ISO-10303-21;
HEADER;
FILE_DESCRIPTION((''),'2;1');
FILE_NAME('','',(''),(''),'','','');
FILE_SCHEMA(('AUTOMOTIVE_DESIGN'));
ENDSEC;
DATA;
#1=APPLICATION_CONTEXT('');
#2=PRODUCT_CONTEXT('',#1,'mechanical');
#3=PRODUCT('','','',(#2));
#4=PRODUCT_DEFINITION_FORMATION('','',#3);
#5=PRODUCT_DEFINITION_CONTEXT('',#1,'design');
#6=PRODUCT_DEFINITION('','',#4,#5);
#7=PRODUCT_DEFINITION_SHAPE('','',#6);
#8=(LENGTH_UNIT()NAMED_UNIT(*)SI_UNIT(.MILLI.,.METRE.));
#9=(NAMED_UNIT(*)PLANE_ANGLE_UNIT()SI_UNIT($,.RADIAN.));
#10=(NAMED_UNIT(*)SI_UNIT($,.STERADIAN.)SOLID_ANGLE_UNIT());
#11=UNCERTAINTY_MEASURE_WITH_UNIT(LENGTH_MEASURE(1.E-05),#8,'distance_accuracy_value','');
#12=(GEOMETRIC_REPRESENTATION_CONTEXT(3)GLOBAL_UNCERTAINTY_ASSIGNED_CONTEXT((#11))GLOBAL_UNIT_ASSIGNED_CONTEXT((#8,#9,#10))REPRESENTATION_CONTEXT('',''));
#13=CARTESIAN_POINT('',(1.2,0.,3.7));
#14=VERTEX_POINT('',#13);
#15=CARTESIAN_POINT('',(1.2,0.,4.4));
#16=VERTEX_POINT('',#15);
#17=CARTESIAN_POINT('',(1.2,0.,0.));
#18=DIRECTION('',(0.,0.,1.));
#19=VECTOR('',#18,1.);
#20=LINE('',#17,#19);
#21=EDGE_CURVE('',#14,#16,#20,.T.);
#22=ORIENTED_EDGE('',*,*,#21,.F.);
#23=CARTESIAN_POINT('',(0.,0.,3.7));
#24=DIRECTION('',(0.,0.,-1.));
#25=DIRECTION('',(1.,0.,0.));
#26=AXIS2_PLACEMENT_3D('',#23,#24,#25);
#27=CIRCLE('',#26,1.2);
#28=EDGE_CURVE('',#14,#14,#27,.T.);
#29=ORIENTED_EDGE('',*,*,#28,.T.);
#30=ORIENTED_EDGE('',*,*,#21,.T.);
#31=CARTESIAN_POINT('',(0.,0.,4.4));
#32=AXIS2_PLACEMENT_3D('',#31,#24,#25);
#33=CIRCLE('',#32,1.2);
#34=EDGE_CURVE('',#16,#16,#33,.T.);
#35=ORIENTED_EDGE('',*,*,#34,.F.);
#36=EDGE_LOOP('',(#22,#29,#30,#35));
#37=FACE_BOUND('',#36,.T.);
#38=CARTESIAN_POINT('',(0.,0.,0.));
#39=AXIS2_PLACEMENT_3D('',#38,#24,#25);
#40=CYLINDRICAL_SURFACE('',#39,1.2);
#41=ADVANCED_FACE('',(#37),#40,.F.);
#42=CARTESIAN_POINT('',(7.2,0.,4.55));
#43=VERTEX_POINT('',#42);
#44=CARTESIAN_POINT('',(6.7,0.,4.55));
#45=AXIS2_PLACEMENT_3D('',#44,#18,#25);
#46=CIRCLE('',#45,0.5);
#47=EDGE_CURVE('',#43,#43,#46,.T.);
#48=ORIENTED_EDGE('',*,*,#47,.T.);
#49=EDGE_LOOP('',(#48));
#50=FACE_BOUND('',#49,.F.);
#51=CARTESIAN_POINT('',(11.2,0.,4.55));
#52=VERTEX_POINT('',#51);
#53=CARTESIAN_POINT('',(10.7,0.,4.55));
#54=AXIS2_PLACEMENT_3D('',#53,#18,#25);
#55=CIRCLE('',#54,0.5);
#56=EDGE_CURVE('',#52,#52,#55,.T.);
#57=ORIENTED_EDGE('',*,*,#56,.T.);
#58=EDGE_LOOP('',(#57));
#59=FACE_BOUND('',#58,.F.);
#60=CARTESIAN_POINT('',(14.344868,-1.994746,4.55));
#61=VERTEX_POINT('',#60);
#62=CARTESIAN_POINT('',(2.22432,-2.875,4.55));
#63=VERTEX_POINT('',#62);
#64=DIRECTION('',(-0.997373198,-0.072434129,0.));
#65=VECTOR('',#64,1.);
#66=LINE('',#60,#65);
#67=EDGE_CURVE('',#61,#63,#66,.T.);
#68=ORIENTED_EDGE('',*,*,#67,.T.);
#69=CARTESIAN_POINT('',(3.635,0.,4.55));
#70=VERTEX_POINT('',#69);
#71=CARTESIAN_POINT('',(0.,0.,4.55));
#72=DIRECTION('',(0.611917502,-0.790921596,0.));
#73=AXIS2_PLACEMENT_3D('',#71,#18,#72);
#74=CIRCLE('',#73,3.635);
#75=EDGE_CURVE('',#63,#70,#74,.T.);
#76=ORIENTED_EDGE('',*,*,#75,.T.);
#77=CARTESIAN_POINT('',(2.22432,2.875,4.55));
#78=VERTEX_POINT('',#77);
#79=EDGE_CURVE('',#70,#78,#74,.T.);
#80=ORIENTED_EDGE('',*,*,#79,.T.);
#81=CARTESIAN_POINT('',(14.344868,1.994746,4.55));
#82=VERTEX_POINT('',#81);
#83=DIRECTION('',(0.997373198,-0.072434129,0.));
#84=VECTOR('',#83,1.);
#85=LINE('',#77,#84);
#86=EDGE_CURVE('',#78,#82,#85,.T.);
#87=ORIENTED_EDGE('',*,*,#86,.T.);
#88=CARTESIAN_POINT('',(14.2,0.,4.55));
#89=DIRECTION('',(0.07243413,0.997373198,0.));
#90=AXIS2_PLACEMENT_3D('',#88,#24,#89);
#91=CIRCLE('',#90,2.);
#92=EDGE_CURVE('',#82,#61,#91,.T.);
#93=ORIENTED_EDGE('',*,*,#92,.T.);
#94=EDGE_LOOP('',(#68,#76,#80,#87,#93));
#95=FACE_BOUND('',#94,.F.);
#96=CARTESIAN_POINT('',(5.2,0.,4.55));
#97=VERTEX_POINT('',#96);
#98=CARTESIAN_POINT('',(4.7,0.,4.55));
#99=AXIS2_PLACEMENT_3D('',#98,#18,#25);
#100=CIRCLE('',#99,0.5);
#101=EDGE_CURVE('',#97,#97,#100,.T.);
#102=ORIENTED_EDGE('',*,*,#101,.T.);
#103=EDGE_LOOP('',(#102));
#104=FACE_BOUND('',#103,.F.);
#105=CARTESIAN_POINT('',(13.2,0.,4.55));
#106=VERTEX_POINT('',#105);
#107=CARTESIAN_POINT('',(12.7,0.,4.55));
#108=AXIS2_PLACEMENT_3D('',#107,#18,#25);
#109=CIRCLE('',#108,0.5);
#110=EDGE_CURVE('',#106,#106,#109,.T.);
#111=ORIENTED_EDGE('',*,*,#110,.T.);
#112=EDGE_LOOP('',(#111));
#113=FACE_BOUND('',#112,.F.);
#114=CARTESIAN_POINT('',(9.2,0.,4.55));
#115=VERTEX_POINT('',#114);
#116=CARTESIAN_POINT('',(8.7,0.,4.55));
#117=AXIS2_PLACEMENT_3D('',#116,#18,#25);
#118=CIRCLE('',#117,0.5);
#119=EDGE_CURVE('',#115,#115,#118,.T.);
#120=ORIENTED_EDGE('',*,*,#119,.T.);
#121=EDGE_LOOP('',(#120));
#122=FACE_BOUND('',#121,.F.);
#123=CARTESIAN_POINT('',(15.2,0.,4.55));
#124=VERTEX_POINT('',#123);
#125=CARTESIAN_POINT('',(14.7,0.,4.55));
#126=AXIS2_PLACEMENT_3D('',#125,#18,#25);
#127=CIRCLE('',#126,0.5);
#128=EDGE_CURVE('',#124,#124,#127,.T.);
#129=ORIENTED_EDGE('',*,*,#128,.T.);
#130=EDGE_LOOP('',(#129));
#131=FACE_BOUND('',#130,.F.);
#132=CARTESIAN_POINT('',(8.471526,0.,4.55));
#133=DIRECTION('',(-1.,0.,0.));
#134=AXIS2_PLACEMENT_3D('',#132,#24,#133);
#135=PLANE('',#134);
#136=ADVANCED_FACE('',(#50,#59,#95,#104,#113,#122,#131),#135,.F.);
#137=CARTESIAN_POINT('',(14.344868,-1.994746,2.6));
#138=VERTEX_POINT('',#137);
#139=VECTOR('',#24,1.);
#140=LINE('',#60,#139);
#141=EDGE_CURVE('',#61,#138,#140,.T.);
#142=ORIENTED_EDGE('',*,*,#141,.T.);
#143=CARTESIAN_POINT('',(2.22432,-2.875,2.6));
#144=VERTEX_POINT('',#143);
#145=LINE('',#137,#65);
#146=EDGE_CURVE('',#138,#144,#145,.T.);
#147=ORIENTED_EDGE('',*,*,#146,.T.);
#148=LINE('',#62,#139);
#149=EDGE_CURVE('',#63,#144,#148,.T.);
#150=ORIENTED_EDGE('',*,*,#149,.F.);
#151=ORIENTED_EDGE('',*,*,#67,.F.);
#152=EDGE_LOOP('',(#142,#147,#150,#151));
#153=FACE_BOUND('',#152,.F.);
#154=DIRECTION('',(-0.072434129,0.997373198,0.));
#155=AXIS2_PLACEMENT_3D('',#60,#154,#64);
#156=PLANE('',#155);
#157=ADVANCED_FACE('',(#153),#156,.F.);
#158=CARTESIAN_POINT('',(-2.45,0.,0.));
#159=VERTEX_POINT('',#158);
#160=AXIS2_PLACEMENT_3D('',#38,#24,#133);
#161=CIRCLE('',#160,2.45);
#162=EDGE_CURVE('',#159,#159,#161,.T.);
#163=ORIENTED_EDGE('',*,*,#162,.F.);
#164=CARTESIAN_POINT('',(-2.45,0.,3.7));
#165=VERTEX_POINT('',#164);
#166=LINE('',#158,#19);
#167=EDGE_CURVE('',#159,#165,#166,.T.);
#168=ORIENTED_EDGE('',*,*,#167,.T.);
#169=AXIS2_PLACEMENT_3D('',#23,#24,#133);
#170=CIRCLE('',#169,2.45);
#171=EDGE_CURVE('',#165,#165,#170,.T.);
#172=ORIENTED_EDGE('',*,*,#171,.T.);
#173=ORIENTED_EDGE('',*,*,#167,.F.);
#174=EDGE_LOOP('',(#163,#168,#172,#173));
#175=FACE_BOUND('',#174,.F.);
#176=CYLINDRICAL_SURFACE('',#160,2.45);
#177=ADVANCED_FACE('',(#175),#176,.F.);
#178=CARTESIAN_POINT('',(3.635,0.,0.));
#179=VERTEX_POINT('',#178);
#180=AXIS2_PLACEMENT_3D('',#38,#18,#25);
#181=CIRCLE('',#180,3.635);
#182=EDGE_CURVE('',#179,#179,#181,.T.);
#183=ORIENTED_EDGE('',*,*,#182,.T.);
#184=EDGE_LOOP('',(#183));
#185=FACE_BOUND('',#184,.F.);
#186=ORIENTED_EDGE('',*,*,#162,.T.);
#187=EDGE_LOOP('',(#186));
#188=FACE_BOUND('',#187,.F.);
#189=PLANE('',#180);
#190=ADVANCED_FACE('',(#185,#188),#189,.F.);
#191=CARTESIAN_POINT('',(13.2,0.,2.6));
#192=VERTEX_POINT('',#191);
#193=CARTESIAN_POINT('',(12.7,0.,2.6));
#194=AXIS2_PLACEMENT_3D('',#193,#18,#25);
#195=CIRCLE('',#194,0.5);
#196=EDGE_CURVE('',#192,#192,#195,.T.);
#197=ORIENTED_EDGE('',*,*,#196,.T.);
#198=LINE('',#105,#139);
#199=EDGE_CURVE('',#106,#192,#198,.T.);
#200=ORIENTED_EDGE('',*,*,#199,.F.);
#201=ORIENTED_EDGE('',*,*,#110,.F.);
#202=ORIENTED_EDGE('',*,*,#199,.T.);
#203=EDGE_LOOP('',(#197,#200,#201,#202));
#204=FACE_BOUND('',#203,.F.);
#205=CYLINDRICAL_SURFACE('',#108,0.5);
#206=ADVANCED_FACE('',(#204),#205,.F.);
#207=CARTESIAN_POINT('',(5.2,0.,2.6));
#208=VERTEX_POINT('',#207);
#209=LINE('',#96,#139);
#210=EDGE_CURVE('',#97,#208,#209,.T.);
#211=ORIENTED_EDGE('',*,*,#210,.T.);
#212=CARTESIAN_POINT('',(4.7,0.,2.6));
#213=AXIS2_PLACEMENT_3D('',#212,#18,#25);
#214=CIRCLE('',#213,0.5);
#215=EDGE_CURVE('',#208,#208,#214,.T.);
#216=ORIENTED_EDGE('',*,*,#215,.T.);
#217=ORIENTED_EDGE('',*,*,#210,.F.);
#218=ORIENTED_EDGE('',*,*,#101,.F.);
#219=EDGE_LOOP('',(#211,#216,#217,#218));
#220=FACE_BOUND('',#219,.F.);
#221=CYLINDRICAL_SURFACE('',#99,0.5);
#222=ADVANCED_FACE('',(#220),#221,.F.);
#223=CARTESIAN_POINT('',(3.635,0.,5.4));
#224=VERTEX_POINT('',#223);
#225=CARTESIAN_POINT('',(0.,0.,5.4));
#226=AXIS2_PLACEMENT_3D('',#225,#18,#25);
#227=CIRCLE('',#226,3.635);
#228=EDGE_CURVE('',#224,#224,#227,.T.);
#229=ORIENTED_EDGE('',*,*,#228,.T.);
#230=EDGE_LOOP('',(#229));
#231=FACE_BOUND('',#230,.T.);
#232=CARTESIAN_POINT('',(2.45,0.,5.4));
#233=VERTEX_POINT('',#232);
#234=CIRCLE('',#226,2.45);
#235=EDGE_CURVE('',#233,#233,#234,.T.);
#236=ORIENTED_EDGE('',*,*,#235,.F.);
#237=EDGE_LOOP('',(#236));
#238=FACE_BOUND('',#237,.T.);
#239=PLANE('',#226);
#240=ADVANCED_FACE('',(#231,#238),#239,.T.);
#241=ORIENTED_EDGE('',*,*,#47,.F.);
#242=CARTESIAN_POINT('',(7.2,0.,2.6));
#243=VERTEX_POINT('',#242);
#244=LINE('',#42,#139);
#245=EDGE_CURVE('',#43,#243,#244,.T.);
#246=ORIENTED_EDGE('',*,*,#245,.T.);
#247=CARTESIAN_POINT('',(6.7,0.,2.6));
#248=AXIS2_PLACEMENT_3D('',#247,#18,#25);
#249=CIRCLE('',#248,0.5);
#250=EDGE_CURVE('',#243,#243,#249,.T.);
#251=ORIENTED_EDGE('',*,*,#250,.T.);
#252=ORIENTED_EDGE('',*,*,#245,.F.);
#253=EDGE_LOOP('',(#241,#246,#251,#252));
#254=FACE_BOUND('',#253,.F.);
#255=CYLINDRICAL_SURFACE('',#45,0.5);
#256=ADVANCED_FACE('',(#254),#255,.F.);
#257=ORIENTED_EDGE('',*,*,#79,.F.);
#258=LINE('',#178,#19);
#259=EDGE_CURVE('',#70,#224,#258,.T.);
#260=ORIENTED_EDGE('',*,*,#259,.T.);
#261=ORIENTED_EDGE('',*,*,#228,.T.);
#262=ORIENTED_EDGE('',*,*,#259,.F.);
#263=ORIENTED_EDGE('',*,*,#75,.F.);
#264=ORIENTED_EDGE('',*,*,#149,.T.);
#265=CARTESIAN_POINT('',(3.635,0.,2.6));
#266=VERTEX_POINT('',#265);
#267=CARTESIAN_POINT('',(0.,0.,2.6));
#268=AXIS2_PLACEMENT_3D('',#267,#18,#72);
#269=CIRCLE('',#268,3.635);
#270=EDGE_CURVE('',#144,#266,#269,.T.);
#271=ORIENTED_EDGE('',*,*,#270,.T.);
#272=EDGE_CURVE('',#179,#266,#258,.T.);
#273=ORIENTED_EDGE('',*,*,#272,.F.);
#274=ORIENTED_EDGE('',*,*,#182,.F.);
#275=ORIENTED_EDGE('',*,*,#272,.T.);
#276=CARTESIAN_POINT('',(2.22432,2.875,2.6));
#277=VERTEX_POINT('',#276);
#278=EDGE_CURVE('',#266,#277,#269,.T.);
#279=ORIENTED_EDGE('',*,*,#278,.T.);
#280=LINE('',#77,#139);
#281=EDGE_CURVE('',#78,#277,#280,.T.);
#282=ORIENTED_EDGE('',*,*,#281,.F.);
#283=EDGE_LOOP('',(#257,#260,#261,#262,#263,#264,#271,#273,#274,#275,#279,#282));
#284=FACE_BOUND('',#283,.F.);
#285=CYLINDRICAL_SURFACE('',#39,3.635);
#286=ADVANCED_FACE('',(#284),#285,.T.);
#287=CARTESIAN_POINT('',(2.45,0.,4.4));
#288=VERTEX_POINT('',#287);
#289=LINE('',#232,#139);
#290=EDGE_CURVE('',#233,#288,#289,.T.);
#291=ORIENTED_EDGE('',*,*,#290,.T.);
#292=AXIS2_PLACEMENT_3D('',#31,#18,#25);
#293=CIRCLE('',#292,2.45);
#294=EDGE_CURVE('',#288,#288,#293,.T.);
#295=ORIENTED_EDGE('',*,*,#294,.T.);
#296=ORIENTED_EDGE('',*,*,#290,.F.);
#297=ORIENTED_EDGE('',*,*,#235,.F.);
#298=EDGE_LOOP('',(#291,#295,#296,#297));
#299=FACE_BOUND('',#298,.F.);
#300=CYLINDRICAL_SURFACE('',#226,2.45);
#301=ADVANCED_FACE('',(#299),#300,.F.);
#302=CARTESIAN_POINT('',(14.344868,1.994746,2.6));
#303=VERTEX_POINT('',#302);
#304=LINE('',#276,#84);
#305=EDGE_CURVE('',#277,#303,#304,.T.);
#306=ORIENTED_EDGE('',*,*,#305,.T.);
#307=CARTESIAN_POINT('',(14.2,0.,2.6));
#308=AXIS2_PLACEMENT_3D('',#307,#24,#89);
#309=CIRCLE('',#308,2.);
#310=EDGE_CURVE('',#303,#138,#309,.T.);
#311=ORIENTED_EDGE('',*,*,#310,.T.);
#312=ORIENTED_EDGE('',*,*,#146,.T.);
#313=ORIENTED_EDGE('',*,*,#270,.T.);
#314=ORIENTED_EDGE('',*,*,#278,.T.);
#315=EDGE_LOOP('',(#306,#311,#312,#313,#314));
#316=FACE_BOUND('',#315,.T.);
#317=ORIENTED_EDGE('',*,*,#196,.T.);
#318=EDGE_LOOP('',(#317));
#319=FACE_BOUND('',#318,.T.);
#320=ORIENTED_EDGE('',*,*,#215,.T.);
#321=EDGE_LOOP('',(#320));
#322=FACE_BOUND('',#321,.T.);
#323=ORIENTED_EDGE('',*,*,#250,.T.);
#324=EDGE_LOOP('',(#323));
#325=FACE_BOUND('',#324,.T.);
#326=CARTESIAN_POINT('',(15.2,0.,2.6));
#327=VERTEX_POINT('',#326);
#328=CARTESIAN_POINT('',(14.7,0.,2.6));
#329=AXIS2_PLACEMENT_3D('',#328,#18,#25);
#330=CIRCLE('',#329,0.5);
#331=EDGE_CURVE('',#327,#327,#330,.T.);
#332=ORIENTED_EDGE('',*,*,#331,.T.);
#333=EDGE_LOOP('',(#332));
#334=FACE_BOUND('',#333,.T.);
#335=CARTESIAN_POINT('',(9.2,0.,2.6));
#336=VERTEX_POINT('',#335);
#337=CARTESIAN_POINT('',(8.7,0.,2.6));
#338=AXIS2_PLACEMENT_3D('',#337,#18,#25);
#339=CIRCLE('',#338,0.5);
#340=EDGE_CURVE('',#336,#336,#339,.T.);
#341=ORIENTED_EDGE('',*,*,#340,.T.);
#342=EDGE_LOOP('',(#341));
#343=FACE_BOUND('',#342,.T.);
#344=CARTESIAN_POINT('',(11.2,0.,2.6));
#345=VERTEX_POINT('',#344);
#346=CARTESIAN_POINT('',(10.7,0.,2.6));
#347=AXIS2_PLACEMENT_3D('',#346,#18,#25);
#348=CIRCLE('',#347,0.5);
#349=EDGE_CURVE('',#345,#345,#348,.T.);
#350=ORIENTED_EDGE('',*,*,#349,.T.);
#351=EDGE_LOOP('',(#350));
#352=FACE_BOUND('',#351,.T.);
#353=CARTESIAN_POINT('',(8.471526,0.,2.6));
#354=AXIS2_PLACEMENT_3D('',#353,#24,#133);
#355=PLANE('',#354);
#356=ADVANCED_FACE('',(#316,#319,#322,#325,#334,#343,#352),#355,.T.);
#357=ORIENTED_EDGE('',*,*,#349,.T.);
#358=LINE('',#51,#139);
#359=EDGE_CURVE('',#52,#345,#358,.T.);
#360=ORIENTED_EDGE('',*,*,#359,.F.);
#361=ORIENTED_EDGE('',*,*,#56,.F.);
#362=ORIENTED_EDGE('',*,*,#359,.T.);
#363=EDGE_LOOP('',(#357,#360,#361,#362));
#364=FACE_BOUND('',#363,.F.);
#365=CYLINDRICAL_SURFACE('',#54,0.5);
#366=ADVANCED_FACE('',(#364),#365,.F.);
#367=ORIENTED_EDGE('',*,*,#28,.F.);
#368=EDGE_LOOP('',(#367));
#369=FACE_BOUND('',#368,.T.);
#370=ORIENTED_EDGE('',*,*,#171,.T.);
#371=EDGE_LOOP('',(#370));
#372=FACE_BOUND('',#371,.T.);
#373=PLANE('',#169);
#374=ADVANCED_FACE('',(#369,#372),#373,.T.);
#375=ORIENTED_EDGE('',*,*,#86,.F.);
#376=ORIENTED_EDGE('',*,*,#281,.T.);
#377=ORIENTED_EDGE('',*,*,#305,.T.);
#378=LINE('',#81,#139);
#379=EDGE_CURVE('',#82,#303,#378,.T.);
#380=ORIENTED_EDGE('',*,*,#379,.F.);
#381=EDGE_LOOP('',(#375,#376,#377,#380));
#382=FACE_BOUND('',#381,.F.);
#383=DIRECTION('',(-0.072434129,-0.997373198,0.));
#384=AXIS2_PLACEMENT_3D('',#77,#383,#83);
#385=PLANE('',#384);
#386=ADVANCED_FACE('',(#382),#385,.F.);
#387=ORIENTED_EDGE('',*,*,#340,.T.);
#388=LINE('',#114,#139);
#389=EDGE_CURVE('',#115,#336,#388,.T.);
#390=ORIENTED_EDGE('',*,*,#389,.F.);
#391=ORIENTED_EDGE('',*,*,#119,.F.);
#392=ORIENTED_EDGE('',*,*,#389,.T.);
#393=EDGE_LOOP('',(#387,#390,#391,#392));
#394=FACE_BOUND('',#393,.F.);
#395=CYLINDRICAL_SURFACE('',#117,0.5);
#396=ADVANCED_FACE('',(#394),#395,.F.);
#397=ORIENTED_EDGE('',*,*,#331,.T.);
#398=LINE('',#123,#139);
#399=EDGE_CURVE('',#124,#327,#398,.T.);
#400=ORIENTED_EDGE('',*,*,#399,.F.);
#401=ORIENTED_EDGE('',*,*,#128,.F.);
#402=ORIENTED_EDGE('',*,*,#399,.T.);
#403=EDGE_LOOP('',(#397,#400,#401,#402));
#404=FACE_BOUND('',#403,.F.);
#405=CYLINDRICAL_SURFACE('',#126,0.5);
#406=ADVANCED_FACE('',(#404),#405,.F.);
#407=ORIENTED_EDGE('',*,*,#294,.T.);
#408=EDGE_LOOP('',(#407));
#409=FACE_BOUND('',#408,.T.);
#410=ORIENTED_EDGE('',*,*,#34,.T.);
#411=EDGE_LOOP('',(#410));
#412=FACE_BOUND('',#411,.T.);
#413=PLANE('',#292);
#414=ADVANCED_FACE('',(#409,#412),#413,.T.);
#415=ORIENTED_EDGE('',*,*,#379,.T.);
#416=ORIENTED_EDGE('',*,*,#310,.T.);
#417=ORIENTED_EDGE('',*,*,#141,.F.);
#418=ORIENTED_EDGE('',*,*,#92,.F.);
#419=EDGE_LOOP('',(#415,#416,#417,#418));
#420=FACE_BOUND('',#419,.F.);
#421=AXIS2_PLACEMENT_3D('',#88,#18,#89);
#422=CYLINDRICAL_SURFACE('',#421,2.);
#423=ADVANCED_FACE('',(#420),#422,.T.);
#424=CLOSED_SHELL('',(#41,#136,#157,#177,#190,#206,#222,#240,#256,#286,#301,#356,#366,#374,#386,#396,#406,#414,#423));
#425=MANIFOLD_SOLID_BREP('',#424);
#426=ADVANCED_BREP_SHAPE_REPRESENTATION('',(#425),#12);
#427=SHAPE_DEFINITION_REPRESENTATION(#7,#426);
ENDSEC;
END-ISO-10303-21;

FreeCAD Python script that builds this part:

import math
import FreeCAD as App
import Part
import Sketcher
from FreeCAD import Vector
Q = App.Units.Quantity

doc = App.newDocument("Part")
body = doc.addObject("PartDesign::Body", "Body")

# Sketch on XY plane
sketch1 = body.newObject("Sketcher::SketchObject", "Sketch")
sketch1.AttachmentSupport = (doc.getObject("XY_Plane"), [""])
sketch1.MapMode = "FlatFace"
sketch1.addGeometry([
    Part.Circle(Vector(0, 0, 0), Vector(0, 0, 1), 3.6),
    Part.Circle(Vector(0, 0, 0), Vector(0, 0, 1), 1.2),
], False)
sketch1.addConstraint([
    Sketcher.Constraint("Coincident", 0, 3, -1, 1),
    Sketcher.Constraint("Coincident", 1, 3, -1, 1),
    Sketcher.Constraint("Diameter", 1, Q("2.4 mm")),
    Sketcher.Constraint("Diameter", 0, Q("7.27 mm")),
])
pad1 = body.newObject("PartDesign::Pad", "Pad")
pad1.Profile = sketch1
pad1.Length = 5.4

# Sketch on XY plane
sketch2 = body.newObject("Sketcher::SketchObject", "Sketch001")
sketch2.AttachmentSupport = (doc.getObject("XY_Plane"), [""])
sketch2.MapMode = "FlatFace"
sketch2.AttachmentOffset = App.Placement(Vector(0, 0, 4.55), App.Rotation())
sketch2.addGeometry([
    Part.LineSegment(Vector(14.3, 2, 0), Vector(2.2, 2.9, 0)),
    Part.ArcOfCircle(Part.Circle(Vector(0, 0, 0), Vector(0, 0, 1), 3.6), math.radians(-52), math.radians(52)),
    Part.LineSegment(Vector(2.2, -2.9, 0), Vector(14.3, -2, 0)),
    Part.ArcOfCircle(Part.Circle(Vector(14.2, 0, 0), Vector(0, 0, 1), 2), math.radians(-86), math.radians(86)),
], False)
sketch2.addConstraint([
    Sketcher.Constraint("Coincident", 0, 2, 1, 2),
    Sketcher.Constraint("Coincident", 1, 1, 2, 1),
    Sketcher.Constraint("Tangent", 2, 2, 3, 1),
    Sketcher.Constraint("Tangent", 3, 2, 0, 1),
    Sketcher.Constraint("Coincident", 1, 3, -1, 1),
    Sketcher.Constraint("Symmetric", 2, 2, 3, 2, -1),
    Sketcher.Constraint("Radius", 3, Q("2 mm")),
    Sketcher.Constraint("Radius", 1, Q("3.635 mm")),
    Sketcher.Constraint("DistanceX", -1, 1, 3, 3, Q("14.2 mm")),
    Sketcher.Constraint("DistanceY", 1, 1, 0, 2, Q("5.75 mm")),
])
pad2 = body.newObject("PartDesign::Pad", "Pad001")
pad2.Profile = sketch2
pad2.Length = 1.95
pad2.Reversed = True

# Sketch on XY plane
sketch3 = body.newObject("Sketcher::SketchObject", "Sketch002")
sketch3.AttachmentSupport = (doc.getObject("XY_Plane"), [""])
sketch3.MapMode = "FlatFace"
sketch3.AttachmentOffset = App.Placement(Vector(0, 0, 5.4), App.Rotation())
sketch3.addGeometry(Part.Circle(Vector(0, 0, 0), Vector(0, 0, 1), 2.5), False)
sketch3.addConstraint([
    Sketcher.Constraint("Coincident", 0, 3, -1, 1),
    Sketcher.Constraint("Diameter", 0, Q("4.9 mm")),
])
pocket1 = body.newObject("PartDesign::Pocket", "Pocket")
pocket1.Profile = sketch3
pocket1.Length = 1

# Sketch on XY plane
sketch4 = body.newObject("Sketcher::SketchObject", "Sketch003")
sketch4.AttachmentSupport = (doc.getObject("XY_Plane"), [""])
sketch4.MapMode = "FlatFace"
sketch4.addGeometry(Part.Circle(Vector(0, 0, 0), Vector(0, 0, 1), 2.5), False)
sketch4.addConstraint([
    Sketcher.Constraint("Coincident", 0, 3, -1, 1),
    Sketcher.Constraint("Diameter", 0, Q("4.9 mm")),
])
pocket2 = body.newObject("PartDesign::Pocket", "Pocket001")
pocket2.Profile = sketch4
pocket2.Length = 3.7
pocket2.Reversed = True

# Sketch on XY plane
sketch5 = body.newObject("Sketcher::SketchObject", "Sketch004")
sketch5.AttachmentSupport = (doc.getObject("XY_Plane"), [""])
sketch5.MapMode = "FlatFace"
sketch5.AttachmentOffset = App.Placement(Vector(0, 0, 4.55), App.Rotation())
sketch5.addGeometry([
    Part.Circle(Vector(14.7, 0, 0), Vector(0, 0, 1), 0.5),  # 0
    Part.Circle(Vector(12.7, 0, 0), Vector(0, 0, 1), 0.5),  # 1
    Part.Circle(Vector(10.7, 0, 0), Vector(0, 0, 1), 0.5),  # 2
    Part.Circle(Vector(8.7, 0, 0), Vector(0, 0, 1), 0.5),  # 3
    Part.Circle(Vector(6.7, 0, 0), Vector(0, 0, 1), 0.5),  # 4
    Part.Circle(Vector(4.7, 0, 0), Vector(0, 0, 1), 0.5),  # 5
], False)
sketch5.addConstraint([
    Sketcher.Constraint("Equal", 0, 1),
    Sketcher.Constraint("Equal", 1, 2),
    Sketcher.Constraint("Equal", 2, 3),
    Sketcher.Constraint("Equal", 3, 4),
    Sketcher.Constraint("Equal", 4, 5),
    Sketcher.Constraint("PointOnObject", 0, 3, -1),
    Sketcher.Constraint("PointOnObject", 1, 3, -1),
    Sketcher.Constraint("PointOnObject", 2, 3, -1),
    Sketcher.Constraint("PointOnObject", 3, 3, -1),
    Sketcher.Constraint("PointOnObject", 4, 3, -1),
    Sketcher.Constraint("PointOnObject", 5, 3, -1),
    Sketcher.Constraint("Diameter", 0, Q("1 mm")),
    Sketcher.Constraint("DistanceX", 1, 3, 0, 3, Q("2 mm")),
    Sketcher.Constraint("DistanceX", 2, 3, 1, 3, Q("2 mm")),
    Sketcher.Constraint("DistanceX", 3, 3, 2, 3, Q("2 mm")),
    Sketcher.Constraint("DistanceX", 4, 3, 3, 3, Q("2 mm")),
    Sketcher.Constraint("DistanceX", 5, 3, 4, 3, Q("2 mm")),
    Sketcher.Constraint("DistanceX", -1, 1, 0, 3, Q("14.7 mm")),
])
pocket3 = body.newObject("PartDesign::Pocket", "Pocket002")
pocket3.Profile = sketch5
pocket3.Length = 3.7

doc.recompute()
